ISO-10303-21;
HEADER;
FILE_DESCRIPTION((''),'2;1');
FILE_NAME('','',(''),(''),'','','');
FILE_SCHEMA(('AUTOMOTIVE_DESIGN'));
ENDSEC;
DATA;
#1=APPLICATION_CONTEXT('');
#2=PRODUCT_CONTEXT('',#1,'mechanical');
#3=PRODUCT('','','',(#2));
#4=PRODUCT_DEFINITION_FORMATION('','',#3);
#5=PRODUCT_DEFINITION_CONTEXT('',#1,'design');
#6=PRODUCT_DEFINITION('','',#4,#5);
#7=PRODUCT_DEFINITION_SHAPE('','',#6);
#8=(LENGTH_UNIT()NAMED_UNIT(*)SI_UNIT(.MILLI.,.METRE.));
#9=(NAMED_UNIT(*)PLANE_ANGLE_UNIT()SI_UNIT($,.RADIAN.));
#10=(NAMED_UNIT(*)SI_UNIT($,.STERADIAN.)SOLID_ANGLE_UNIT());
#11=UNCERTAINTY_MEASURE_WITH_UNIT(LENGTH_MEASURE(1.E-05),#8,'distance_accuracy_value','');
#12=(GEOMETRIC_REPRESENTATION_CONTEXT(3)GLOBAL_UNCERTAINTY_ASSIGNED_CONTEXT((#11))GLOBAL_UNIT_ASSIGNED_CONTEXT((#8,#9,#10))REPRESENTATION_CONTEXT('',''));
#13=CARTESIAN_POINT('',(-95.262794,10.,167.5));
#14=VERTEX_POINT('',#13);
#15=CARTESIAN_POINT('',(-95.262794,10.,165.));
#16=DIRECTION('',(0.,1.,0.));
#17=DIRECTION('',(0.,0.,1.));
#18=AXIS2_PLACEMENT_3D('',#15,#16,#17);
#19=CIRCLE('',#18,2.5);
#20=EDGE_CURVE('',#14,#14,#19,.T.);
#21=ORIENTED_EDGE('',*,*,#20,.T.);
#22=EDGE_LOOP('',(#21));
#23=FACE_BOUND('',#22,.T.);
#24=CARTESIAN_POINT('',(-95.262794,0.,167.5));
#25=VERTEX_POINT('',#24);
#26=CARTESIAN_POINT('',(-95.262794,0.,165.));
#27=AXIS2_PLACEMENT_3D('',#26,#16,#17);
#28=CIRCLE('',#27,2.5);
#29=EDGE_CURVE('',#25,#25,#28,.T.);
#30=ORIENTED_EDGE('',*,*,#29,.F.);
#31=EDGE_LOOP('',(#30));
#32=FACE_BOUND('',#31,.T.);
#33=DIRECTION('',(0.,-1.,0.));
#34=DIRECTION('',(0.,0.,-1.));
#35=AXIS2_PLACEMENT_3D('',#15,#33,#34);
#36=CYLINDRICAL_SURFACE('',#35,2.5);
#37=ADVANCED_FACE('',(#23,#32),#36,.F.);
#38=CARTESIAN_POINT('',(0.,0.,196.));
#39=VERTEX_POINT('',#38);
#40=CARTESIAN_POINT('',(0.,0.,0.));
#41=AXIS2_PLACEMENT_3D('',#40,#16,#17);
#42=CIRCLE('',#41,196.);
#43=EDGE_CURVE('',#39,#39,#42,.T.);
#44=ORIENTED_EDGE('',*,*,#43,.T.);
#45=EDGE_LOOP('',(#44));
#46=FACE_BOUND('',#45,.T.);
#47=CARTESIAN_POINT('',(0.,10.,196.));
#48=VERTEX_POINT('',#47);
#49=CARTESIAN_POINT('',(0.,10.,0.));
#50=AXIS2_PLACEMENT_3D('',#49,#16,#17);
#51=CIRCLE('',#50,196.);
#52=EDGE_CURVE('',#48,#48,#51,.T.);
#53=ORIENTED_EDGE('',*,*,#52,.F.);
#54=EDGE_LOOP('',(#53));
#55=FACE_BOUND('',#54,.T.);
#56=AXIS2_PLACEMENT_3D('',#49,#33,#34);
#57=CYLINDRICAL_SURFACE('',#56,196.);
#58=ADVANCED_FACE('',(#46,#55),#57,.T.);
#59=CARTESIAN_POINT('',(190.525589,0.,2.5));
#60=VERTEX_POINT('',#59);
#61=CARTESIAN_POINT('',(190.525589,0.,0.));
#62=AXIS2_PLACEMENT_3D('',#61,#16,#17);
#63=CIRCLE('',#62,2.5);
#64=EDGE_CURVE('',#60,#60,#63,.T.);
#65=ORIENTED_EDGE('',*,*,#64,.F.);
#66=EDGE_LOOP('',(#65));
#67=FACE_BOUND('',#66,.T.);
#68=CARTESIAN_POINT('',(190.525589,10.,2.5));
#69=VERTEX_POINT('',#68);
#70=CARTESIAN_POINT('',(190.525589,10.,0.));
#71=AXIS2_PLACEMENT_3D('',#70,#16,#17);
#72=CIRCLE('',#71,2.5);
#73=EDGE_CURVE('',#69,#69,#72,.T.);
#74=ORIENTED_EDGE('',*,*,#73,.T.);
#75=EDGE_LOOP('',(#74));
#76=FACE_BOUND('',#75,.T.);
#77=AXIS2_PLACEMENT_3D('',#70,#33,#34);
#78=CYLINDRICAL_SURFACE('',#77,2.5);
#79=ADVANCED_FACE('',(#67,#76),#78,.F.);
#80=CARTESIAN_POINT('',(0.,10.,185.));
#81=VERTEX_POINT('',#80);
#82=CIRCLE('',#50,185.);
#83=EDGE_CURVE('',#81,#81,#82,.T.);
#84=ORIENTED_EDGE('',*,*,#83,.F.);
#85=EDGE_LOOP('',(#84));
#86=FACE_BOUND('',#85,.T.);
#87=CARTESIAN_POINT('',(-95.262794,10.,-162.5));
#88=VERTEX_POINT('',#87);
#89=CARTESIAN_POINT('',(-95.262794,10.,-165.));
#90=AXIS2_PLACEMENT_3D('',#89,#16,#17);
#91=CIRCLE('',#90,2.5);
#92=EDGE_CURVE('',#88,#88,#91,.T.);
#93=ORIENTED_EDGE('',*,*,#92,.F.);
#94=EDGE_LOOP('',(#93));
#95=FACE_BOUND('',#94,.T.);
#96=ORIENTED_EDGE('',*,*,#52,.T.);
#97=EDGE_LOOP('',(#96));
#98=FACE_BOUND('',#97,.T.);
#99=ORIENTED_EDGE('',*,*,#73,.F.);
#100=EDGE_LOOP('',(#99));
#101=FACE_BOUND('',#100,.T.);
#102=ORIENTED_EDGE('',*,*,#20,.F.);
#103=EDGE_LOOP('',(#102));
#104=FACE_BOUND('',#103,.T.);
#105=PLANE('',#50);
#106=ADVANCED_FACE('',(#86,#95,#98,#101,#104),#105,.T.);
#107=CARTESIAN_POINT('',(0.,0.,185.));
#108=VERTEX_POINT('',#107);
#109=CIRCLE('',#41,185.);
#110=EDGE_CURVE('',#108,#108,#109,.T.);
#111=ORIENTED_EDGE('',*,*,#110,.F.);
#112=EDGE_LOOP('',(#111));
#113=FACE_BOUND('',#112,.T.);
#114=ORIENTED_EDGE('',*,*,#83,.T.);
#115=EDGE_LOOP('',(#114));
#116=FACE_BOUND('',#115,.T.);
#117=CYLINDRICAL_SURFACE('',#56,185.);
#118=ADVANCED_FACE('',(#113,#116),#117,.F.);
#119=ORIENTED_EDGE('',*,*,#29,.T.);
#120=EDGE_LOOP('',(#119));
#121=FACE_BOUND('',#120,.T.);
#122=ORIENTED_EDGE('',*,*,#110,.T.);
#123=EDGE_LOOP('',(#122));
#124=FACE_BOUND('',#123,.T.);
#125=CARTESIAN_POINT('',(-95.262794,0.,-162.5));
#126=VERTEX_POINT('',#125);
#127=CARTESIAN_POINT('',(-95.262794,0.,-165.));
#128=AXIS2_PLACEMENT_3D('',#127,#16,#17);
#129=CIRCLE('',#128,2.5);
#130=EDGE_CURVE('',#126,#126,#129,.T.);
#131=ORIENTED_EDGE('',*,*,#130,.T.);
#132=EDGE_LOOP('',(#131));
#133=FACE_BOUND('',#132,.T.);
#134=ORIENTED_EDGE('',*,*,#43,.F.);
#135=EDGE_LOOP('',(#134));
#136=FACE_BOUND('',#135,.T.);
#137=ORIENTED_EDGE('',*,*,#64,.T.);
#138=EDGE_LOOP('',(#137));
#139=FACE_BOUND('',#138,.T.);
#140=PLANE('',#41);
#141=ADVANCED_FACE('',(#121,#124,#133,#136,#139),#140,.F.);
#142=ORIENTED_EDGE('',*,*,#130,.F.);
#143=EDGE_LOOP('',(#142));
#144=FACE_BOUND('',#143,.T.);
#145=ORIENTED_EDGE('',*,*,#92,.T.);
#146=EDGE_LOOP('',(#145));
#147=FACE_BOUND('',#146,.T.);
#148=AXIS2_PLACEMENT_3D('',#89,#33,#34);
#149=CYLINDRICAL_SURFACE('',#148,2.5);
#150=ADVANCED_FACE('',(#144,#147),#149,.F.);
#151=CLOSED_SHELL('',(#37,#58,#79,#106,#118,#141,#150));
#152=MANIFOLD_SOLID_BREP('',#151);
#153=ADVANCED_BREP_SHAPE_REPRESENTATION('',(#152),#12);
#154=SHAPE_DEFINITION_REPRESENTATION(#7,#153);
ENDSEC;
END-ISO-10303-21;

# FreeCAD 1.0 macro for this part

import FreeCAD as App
import Part
import Sketcher
from FreeCAD import Vector

doc = App.newDocument("Part")
body = doc.addObject("PartDesign::Body", "Body")

# Sketch on XZ plane
sketch1 = doc.addObject("Sketcher::SketchObject", "Sketch")
body.addObject(sketch1)
sketch1.AttachmentSupport = (doc.XZ_Plane, [""])
sketch1.MapMode = "FlatFace"
sketch1.addGeometry(Part.Circle(Vector(0, 0, 0), Vector(0, 0, 1), 196), False)
sketch1.addGeometry(Part.Circle(Vector(-95.3, -165, 0), Vector(0, 0, 1), 2.5), False)
sketch1.addGeometry(Part.Circle(Vector(-95.3, 165, 0), Vector(0, 0, 1), 2.5), False)
sketch1.addGeometry(Part.Circle(Vector(0, 0, 0), Vector(0, 0, 1), 185), False)
sketch1.addGeometry(Part.Circle(Vector(190.5, 0, 0), Vector(0, 0, 1), 2.5), False)
sketch1.addConstraint(Sketcher.Constraint("Coincident", 0, 3, -1, 1))
sketch1.addConstraint(Sketcher.Constraint("Coincident", 3, 3, -1, 1))
sketch1.addConstraint(Sketcher.Constraint("Equal", 1, 2))
sketch1.addConstraint(Sketcher.Constraint("Equal", 2, 4))
sketch1.addConstraint(Sketcher.Constraint("Symmetric", 1, 3, 2, 3, -1))
sketch1.addConstraint(Sketcher.Constraint("PointOnObject", 4, 3, -1))
sketch1.addConstraint(Sketcher.Constraint("Diameter", 0, 392.0))
sketch1.addConstraint(Sketcher.Constraint("Diameter", 1, 5.0))
sketch1.addConstraint(Sketcher.Constraint("Diameter", 3, 370.0))
sketch1.addConstraint(Sketcher.Constraint("DistanceY", 1, 3, -1, 1, 165.0))
sketch1.addConstraint(Sketcher.Constraint("DistanceX", -1, 1, 4, 3, 190.525589))
sketch1.addConstraint(Sketcher.Constraint("DistanceX", 1, 3, -1, 1, 95.262794))
pad1 = doc.addObject("PartDesign::Pad", "Pad")
body.addObject(pad1)
pad1.Profile = sketch1
pad1.Length = 10
pad1.Reversed = True

doc.recompute()
